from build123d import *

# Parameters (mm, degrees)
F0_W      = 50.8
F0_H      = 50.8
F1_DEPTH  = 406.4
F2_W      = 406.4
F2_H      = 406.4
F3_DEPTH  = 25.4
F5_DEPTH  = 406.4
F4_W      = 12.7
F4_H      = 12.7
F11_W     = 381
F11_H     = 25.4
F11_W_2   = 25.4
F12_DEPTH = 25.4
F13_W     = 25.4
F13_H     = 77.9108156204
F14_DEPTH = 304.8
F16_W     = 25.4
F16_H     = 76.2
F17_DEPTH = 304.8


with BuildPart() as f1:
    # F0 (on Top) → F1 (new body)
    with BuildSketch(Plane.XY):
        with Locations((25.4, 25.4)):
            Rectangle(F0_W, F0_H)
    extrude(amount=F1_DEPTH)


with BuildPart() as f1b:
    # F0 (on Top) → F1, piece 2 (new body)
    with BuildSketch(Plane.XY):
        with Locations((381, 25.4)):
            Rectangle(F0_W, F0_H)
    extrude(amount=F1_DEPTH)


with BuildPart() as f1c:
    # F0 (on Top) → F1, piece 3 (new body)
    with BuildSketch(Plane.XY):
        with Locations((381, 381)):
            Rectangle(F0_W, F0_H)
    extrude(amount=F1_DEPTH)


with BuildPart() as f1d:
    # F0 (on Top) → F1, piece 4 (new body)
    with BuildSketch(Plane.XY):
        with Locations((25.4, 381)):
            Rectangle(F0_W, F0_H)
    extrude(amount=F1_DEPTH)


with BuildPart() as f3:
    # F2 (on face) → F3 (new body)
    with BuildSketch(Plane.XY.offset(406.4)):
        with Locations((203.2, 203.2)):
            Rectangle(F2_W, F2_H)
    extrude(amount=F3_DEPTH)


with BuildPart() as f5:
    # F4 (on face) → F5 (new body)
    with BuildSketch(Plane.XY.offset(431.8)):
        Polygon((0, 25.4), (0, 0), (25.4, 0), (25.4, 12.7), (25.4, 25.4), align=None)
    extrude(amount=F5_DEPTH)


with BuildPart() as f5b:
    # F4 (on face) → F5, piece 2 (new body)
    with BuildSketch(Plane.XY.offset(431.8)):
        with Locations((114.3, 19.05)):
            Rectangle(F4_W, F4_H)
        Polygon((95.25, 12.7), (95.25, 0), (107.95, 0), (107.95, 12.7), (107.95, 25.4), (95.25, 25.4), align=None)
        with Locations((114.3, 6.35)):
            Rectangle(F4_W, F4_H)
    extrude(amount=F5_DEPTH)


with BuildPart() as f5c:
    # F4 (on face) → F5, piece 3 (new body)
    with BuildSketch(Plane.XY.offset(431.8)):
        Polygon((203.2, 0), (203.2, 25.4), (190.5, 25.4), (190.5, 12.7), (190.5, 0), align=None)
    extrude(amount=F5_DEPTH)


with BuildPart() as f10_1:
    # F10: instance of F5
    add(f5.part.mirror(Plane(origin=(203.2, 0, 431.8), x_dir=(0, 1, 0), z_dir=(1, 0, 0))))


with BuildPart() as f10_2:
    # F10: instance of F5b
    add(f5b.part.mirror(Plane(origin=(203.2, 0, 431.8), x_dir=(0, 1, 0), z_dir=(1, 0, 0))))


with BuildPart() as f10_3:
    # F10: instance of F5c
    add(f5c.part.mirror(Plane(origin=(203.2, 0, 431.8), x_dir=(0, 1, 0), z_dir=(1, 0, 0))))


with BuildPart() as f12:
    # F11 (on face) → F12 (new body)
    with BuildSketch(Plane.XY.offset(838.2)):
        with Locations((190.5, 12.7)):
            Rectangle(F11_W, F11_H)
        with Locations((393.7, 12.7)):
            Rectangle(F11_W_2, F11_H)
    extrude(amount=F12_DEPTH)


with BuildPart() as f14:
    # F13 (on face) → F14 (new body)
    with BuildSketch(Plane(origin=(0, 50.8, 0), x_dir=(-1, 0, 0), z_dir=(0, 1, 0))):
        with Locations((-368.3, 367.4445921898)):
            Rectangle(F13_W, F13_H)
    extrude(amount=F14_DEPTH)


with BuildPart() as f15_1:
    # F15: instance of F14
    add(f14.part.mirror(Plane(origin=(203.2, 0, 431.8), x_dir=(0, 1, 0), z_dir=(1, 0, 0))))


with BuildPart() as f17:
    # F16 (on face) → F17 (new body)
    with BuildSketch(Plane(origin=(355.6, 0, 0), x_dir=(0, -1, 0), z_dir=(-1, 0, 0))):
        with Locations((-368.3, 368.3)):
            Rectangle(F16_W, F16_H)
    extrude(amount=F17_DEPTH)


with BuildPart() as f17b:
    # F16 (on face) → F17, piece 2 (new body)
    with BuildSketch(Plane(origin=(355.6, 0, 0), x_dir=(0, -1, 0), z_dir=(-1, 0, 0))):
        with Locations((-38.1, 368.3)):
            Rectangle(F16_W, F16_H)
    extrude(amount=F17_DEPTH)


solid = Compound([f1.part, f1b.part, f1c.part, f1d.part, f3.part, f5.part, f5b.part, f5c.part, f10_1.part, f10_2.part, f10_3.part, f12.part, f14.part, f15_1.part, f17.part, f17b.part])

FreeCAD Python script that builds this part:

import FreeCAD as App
import Part
import Sketcher

V = App.Vector
Q = App.Units.Quantity


def add_polygon(sketch, points):
    """Adds a closed chain of lines whose ends are joined by coincident constraints."""
    first, n = sketch.GeometryCount, len(points)
    for a, b in zip(points, points[1:] + points[:1]):
        sketch.addGeometry(Part.LineSegment(App.Vector(*a, 0), App.Vector(*b, 0)), False)
    for i in range(n):
        sketch.addConstraint(Sketcher.Constraint("Coincident", first + i, 2, first + (i + 1) % n, 1))

doc = App.newDocument("Part")
body = doc.addObject("PartDesign::Body", "Body")

# Sketch on XY plane
sketch1 = body.newObject("Sketcher::SketchObject", "Sketch")
sketch1.AttachmentSupport = (doc.getObject("XY_Plane"), [""])
sketch1.MapMode = "FlatFace"
add_polygon(sketch1, [(0, 51), (0, 0), (51, 0), (51, 51)])  # lines 0-3
sketch1.addConstraint(Sketcher.Constraint("Vertical", 0))
sketch1.addConstraint(Sketcher.Constraint("Horizontal", 1))
sketch1.addConstraint(Sketcher.Constraint("Vertical", 2))
sketch1.addConstraint(Sketcher.Constraint("Horizontal", 3))
sketch1.addConstraint(Sketcher.Constraint("Coincident", 0, 2, -1, 1))
sketch1.addConstraint(Sketcher.Constraint("Equal", 3, 0))
sketch1.addConstraint(Sketcher.Constraint("DistanceX", 1, 1, 1, 2, Q("2 in")))
pad1 = body.newObject("PartDesign::Pad", "Pad")
pad1.Profile = sketch1
pad1.Length = Q("16 in")
body2 = doc.addObject("PartDesign::Body", "Body001")

# Sketch on XY plane
sketch2 = body2.newObject("Sketcher::SketchObject", "Sketch001")
sketch2.AttachmentSupport = (doc.getObject("XY_Plane001"), [""])
sketch2.MapMode = "FlatFace"
add_polygon(sketch2, [(356, 51), (356, 0), (406, 0), (406, 51)])  # lines 0-3
sketch2.addConstraint(Sketcher.Constraint("Vertical", 0))
sketch2.addConstraint(Sketcher.Constraint("Horizontal", 1))
sketch2.addConstraint(Sketcher.Constraint("Vertical", 2))
sketch2.addConstraint(Sketcher.Constraint("Horizontal", 3))
sketch2.addConstraint(Sketcher.Constraint("PointOnObject", 0, 2, -1))
sketch2.addConstraint(Sketcher.Constraint("Equal", 3, 0))
sketch2.addConstraint(Sketcher.Constraint("DistanceX", 1, 1, 1, 2, Q("2 in")))
sketch2.addConstraint(Sketcher.Constraint("DistanceX", -1, 1, 0, 2, Q("14 in")))
pad2 = body2.newObject("PartDesign::Pad", "Pad001")
pad2.Profile = sketch2
pad2.Length = Q("16 in")
body3 = doc.addObject("PartDesign::Body", "Body002")

# Sketch on XY plane
sketch3 = body3.newObject("Sketcher::SketchObject", "Sketch002")
sketch3.AttachmentSupport = (doc.getObject("XY_Plane002"), [""])
sketch3.MapMode = "FlatFace"
add_polygon(sketch3, [(356, 406), (356, 356), (406, 356), (406, 406)])  # lines 0-3
sketch3.addConstraint(Sketcher.Constraint("Vertical", 0))
sketch3.addConstraint(Sketcher.Constraint("Horizontal", 1))
sketch3.addConstraint(Sketcher.Constraint("Vertical", 2))
sketch3.addConstraint(Sketcher.Constraint("Horizontal", 3))
sketch3.addConstraint(Sketcher.Constraint("Equal", 3, 0))
sketch3.addConstraint(Sketcher.Constraint("DistanceX", 1, 1, 1, 2, Q("2 in")))
sketch3.addConstraint(Sketcher.Constraint("DistanceX", -1, 1, 0, 2, Q("14 in")))
sketch3.addConstraint(Sketcher.Constraint("DistanceY", -1, 1, 0, 2, Q("14 in")))
pad3 = body3.newObject("PartDesign::Pad", "Pad002")
pad3.Profile = sketch3
pad3.Length = Q("16 in")
body4 = doc.addObject("PartDesign::Body", "Body003")

# Sketch on XY plane
sketch4 = body4.newObject("Sketcher::SketchObject", "Sketch003")
sketch4.AttachmentSupport = (doc.getObject("XY_Plane003"), [""])
sketch4.MapMode = "FlatFace"
add_polygon(sketch4, [(0, 406), (0, 356), (51, 356), (51, 406)])  # lines 0-3
sketch4.addConstraint(Sketcher.Constraint("Vertical", 0))
sketch4.addConstraint(Sketcher.Constraint("Horizontal", 1))
sketch4.addConstraint(Sketcher.Constraint("Vertical", 2))
sketch4.addConstraint(Sketcher.Constraint("Horizontal", 3))
sketch4.addConstraint(Sketcher.Constraint("PointOnObject", 0, 2, -2))
sketch4.addConstraint(Sketcher.Constraint("Equal", 3, 0))
sketch4.addConstraint(Sketcher.Constraint("DistanceX", 1, 1, 1, 2, Q("2 in")))
sketch4.addConstraint(Sketcher.Constraint("DistanceY", -1, 1, 0, 2, Q("14 in")))
pad4 = body4.newObject("PartDesign::Pad", "Pad003")
pad4.Profile = sketch4
pad4.Length = Q("16 in")
body5 = doc.addObject("PartDesign::Body", "Body004")

# Sketch on XY plane
sketch5 = body5.newObject("Sketcher::SketchObject", "Sketch004")
sketch5.AttachmentSupport = (doc.getObject("XY_Plane004"), [""])
sketch5.MapMode = "FlatFace"
sketch5.AttachmentOffset = App.Placement(V(0, 0, 16 * 25.4), App.Rotation())
add_polygon(sketch5, [(0, 406), (0, 0), (406, 0), (406, 406)])  # lines 0-3
sketch5.addConstraint(Sketcher.Constraint("Vertical", 0))
sketch5.addConstraint(Sketcher.Constraint("Horizontal", 1))
sketch5.addConstraint(Sketcher.Constraint("Vertical", 2))
sketch5.addConstraint(Sketcher.Constraint("Horizontal", 3))
sketch5.addConstraint(Sketcher.Constraint("Coincident", 0, 2, -1, 1))
sketch5.addConstraint(Sketcher.Constraint("Equal", 3, 0))
sketch5.addConstraint(Sketcher.Constraint("DistanceX", 1, 1, 1, 2, Q("16 in")))
pad5 = body5.newObject("PartDesign::Pad", "Pad004")
pad5.Profile = sketch5
pad5.Length = Q("1 in")
body6 = doc.addObject("PartDesign::Body", "Body005")

# Sketch on XY plane
sketch6 = body6.newObject("Sketcher::SketchObject", "Sketch005")
sketch6.AttachmentSupport = (doc.getObject("XY_Plane005"), [""])
sketch6.MapMode = "FlatFace"
sketch6.AttachmentOffset = App.Placement(V(0, 0, 17 * 25.4), App.Rotation())
add_polygon(sketch6, [(0, 25), (0, 0), (25, 0), (25, 25)])  # lines 0-3
sketch6.addConstraint(Sketcher.Constraint("Vertical", 0))
sketch6.addConstraint(Sketcher.Constraint("Horizontal", 1))
sketch6.addConstraint(Sketcher.Constraint("Vertical", 2))
sketch6.addConstraint(Sketcher.Constraint("Horizontal", 3))
sketch6.addConstraint(Sketcher.Constraint("Coincident", 0, 2, -1, 1))
sketch6.addConstraint(Sketcher.Constraint("Equal", 3, 0))
sketch6.addConstraint(Sketcher.Constraint("DistanceX", 1, 1, 1, 2, Q("1 in")))
pad6 = body6.newObject("PartDesign::Pad", "Pad005")
pad6.Profile = sketch6
pad6.Length = Q("16 in")
body7 = doc.addObject("PartDesign::Body", "Body006")

# Sketch on XY plane
sketch7 = body7.newObject("Sketcher::SketchObject", "Sketch006")
sketch7.AttachmentSupport = (doc.getObject("XY_Plane006"), [""])
sketch7.MapMode = "FlatFace"
sketch7.AttachmentOffset = App.Placement(V(0, 0, 17 * 25.4), App.Rotation())
add_polygon(sketch7, [(121, 25), (95, 25), (95, 0), (121, 0)])  # lines 0-3
sketch7.addConstraint(Sketcher.Constraint("Horizontal", 0))
sketch7.addConstraint(Sketcher.Constraint("Vertical", 1))
sketch7.addConstraint(Sketcher.Constraint("Horizontal", 2))
sketch7.addConstraint(Sketcher.Constraint("Vertical", 3))
sketch7.addConstraint(Sketcher.Constraint("PointOnObject", 1, 2, -1))
sketch7.addConstraint(Sketcher.Constraint("Equal", 2, 1))
sketch7.addConstraint(Sketcher.Constraint("DistanceX", 0, 2, 0, 1, Q("1 in")))
sketch7.addConstraint(Sketcher.Constraint("DistanceX", -1, 1, 0, 2, Q("3.75 in")))
pad7 = body7.newObject("PartDesign::Pad", "Pad006")
pad7.Profile = sketch7
pad7.Length = Q("16 in")
body8 = doc.addObject("PartDesign::Body", "Body007")

# Sketch on XY plane
sketch8 = body8.newObject("Sketcher::SketchObject", "Sketch007")
sketch8.AttachmentSupport = (doc.getObject("XY_Plane007"), [""])
sketch8.MapMode = "FlatFace"
sketch8.AttachmentOffset = App.Placement(V(0, 0, 17 * 25.4), App.Rotation())
add_polygon(sketch8, [(203, 0), (203, 25), (190, 25), (190, 0)])  # lines 0-3
sketch8.addConstraint(Sketcher.Constraint("Vertical", 0))
sketch8.addConstraint(Sketcher.Constraint("Horizontal", 1))
sketch8.addConstraint(Sketcher.Constraint("Vertical", 2))
sketch8.addConstraint(Sketcher.Constraint("Horizontal", 3))
sketch8.addConstraint(Sketcher.Constraint("PointOnObject", 2, 2, -1))
sketch8.addConstraint(Sketcher.Constraint("DistanceY", 0, 1, 0, 2, Q("1 in")))
sketch8.addConstraint(Sketcher.Constraint("DistanceX", 1, 2, 1, 1, Q("0.5 in")))
sketch8.addConstraint(Sketcher.Constraint("DistanceX", -1, 1, 0, 2, Q("8 in")))
pad8 = body8.newObject("PartDesign::Pad", "Pad007")
pad8.Profile = sketch8
pad8.Length = Q("16 in")
body9 = doc.addObject("PartDesign::Body", "Body008")
doc.recompute()

mirroring = doc.addObject("Part::Mirroring", "Mirroring")
mirroring.Source = body6
mirroring.Base = V(203.2, 0, 431.8)
mirroring.Normal = V(1, 0, 0)
body9.BaseFeature = mirroring
doc.recompute()
body10 = doc.addObject("PartDesign::Body", "Body009")
doc.recompute()

mirroring2 = doc.addObject("Part::Mirroring", "Mirroring001")
mirroring2.Source = body7
mirroring2.Base = V(203.2, 0, 431.8)
mirroring2.Normal = V(1, 0, 0)
body10.BaseFeature = mirroring2
doc.recompute()
body11 = doc.addObject("PartDesign::Body", "Body010")
doc.recompute()

mirroring3 = doc.addObject("Part::Mirroring", "Mirroring002")
mirroring3.Source = body8
mirroring3.Base = V(203.2, 0, 431.8)
mirroring3.Normal = V(1, 0, 0)
body11.BaseFeature = mirroring3
doc.recompute()
body12 = doc.addObject("PartDesign::Body", "Body011")

# Sketch on XY plane
sketch9 = body12.newObject("Sketcher::SketchObject", "Sketch008")
sketch9.AttachmentSupport = (doc.getObject("XY_Plane011"), [""])
sketch9.MapMode = "FlatFace"
sketch9.AttachmentOffset = App.Placement(V(0, 0, 33 * 25.4), App.Rotation())
add_polygon(sketch9, [(0, 25), (0, 0), (406, 0), (406, 25)])  # lines 0-3
sketch9.addConstraint(Sketcher.Constraint("Vertical", 0))
sketch9.addConstraint(Sketcher.Constraint("Horizontal", 1))
sketch9.addConstraint(Sketcher.Constraint("Vertical", 2))
sketch9.addConstraint(Sketcher.Constraint("Horizontal", 3))
sketch9.addConstraint(Sketcher.Constraint("Coincident", 0, 2, -1, 1))
sketch9.addConstraint(Sketcher.Constraint("DistanceX", 1, 1, 1, 2, Q("16 in")))
sketch9.addConstraint(Sketcher.Constraint("DistanceY", 0, 2, 0, 1, Q("1 in")))
pad9 = body12.newObject("PartDesign::Pad", "Pad008")
pad9.Profile = sketch9
pad9.Length = Q("1 in")
body13 = doc.addObject("PartDesign::Body", "Body012")

# Sketch on XZ plane
sketch10 = body13.newObject("Sketcher::SketchObject", "Sketch009")
sketch10.AttachmentSupport = (doc.getObject("XZ_Plane012"), [""])
sketch10.MapMode = "FlatFace"
sketch10.AttachmentOffset = App.Placement(V(0, 0, -2 * 25.4), App.Rotation())
add_polygon(sketch10, [(381, 406), (381, 328), (356, 328), (356, 406)])  # lines 0-3
sketch10.addConstraint(Sketcher.Constraint("Vertical", 0))
sketch10.addConstraint(Sketcher.Constraint("Horizontal", 1))
sketch10.addConstraint(Sketcher.Constraint("Vertical", 2))
sketch10.addConstraint(Sketcher.Constraint("Horizontal", 3))
sketch10.addConstraint(Sketcher.Constraint("DistanceX", 1, 2, 1, 1, Q("1 in")))
sketch10.addConstraint(Sketcher.Constraint("DistanceX", -1, 1, 0, 2, Q("15 in")))
sketch10.addConstraint(Sketcher.Constraint("DistanceY", -1, 1, 2, 2, Q("16 in")))
sketch10.addConstraint(Sketcher.Constraint("DistanceY", 0, 2, 0, 1, 77.910816))
pad10 = body13.newObject("PartDesign::Pad", "Pad009")
pad10.Profile = sketch10
pad10.Length = Q("12 in")
pad10.Reversed = True
body14 = doc.addObject("PartDesign::Body", "Body013")
doc.recompute()

mirroring4 = doc.addObject("Part::Mirroring", "Mirroring003")
mirroring4.Source = body13
mirroring4.Base = V(203.2, 0, 431.8)
mirroring4.Normal = V(1, 0, 0)
body14.BaseFeature = mirroring4
doc.recompute()
body15 = doc.addObject("PartDesign::Body", "Body014")

# Sketch on YZ plane
sketch11 = body15.newObject("Sketcher::SketchObject", "Sketch010")
sketch11.AttachmentSupport = (doc.getObject("YZ_Plane014"), [""])
sketch11.MapMode = "FlatFace"
sketch11.AttachmentOffset = App.Placement(V(0, 0, 14 * 25.4), App.Rotation())
add_polygon(sketch11, [(381, 406), (381, 330), (356, 330), (356, 406)])  # lines 0-3
sketch11.addConstraint(Sketcher.Constraint("Vertical", 0))
sketch11.addConstraint(Sketcher.Constraint("Horizontal", 1))
sketch11.addConstraint(Sketcher.Constraint("Vertical", 2))
sketch11.addConstraint(Sketcher.Constraint("Horizontal", 3))
sketch11.addConstraint(Sketcher.Constraint("DistanceX", 1, 2, 1, 1, Q("1 in")))
sketch11.addConstraint(Sketcher.Constraint("DistanceY", 0, 2, 0, 1, Q("3 in")))
sketch11.addConstraint(Sketcher.Constraint("DistanceX", -1, 1, 0, 2, Q("15 in")))
sketch11.addConstraint(Sketcher.Constraint("DistanceY", -1, 1, 0, 2, Q("13 in")))
pad11 = body15.newObject("PartDesign::Pad", "Pad010")
pad11.Profile = sketch11
pad11.Length = Q("12 in")
pad11.Reversed = True
body16 = doc.addObject("PartDesign::Body", "Body015")

# Sketch on YZ plane
sketch12 = body16.newObject("Sketcher::SketchObject", "Sketch011")
sketch12.AttachmentSupport = (doc.getObject("YZ_Plane015"), [""])
sketch12.MapMode = "FlatFace"
sketch12.AttachmentOffset = App.Placement(V(0, 0, 14 * 25.4), App.Rotation())
add_polygon(sketch12, [(51, 406), (51, 330), (25, 330), (25, 406)])  # lines 0-3
sketch12.addConstraint(Sketcher.Constraint("Vertical", 0))
sketch12.addConstraint(Sketcher.Constraint("Horizontal", 1))
sketch12.addConstraint(Sketcher.Constraint("Vertical", 2))
sketch12.addConstraint(Sketcher.Constraint("Horizontal", 3))
sketch12.addConstraint(Sketcher.Constraint("DistanceX", 1, 2, 1, 1, Q("1 in")))
sketch12.addConstraint(Sketcher.Constraint("DistanceY", 0, 2, 0, 1, Q("3 in")))
sketch12.addConstraint(Sketcher.Constraint("DistanceX", -1, 1, 0, 2, Q("2 in")))
sketch12.addConstraint(Sketcher.Constraint("DistanceY", -1, 1, 0, 2, Q("13 in")))
pad12 = body16.newObject("PartDesign::Pad", "Pad011")
pad12.Profile = sketch12
pad12.Length = Q("12 in")
pad12.Reversed = True
mirroring.Visibility = False
mirroring2.Visibility = False
mirroring3.Visibility = False
mirroring4.Visibility = False

doc.recompute()
